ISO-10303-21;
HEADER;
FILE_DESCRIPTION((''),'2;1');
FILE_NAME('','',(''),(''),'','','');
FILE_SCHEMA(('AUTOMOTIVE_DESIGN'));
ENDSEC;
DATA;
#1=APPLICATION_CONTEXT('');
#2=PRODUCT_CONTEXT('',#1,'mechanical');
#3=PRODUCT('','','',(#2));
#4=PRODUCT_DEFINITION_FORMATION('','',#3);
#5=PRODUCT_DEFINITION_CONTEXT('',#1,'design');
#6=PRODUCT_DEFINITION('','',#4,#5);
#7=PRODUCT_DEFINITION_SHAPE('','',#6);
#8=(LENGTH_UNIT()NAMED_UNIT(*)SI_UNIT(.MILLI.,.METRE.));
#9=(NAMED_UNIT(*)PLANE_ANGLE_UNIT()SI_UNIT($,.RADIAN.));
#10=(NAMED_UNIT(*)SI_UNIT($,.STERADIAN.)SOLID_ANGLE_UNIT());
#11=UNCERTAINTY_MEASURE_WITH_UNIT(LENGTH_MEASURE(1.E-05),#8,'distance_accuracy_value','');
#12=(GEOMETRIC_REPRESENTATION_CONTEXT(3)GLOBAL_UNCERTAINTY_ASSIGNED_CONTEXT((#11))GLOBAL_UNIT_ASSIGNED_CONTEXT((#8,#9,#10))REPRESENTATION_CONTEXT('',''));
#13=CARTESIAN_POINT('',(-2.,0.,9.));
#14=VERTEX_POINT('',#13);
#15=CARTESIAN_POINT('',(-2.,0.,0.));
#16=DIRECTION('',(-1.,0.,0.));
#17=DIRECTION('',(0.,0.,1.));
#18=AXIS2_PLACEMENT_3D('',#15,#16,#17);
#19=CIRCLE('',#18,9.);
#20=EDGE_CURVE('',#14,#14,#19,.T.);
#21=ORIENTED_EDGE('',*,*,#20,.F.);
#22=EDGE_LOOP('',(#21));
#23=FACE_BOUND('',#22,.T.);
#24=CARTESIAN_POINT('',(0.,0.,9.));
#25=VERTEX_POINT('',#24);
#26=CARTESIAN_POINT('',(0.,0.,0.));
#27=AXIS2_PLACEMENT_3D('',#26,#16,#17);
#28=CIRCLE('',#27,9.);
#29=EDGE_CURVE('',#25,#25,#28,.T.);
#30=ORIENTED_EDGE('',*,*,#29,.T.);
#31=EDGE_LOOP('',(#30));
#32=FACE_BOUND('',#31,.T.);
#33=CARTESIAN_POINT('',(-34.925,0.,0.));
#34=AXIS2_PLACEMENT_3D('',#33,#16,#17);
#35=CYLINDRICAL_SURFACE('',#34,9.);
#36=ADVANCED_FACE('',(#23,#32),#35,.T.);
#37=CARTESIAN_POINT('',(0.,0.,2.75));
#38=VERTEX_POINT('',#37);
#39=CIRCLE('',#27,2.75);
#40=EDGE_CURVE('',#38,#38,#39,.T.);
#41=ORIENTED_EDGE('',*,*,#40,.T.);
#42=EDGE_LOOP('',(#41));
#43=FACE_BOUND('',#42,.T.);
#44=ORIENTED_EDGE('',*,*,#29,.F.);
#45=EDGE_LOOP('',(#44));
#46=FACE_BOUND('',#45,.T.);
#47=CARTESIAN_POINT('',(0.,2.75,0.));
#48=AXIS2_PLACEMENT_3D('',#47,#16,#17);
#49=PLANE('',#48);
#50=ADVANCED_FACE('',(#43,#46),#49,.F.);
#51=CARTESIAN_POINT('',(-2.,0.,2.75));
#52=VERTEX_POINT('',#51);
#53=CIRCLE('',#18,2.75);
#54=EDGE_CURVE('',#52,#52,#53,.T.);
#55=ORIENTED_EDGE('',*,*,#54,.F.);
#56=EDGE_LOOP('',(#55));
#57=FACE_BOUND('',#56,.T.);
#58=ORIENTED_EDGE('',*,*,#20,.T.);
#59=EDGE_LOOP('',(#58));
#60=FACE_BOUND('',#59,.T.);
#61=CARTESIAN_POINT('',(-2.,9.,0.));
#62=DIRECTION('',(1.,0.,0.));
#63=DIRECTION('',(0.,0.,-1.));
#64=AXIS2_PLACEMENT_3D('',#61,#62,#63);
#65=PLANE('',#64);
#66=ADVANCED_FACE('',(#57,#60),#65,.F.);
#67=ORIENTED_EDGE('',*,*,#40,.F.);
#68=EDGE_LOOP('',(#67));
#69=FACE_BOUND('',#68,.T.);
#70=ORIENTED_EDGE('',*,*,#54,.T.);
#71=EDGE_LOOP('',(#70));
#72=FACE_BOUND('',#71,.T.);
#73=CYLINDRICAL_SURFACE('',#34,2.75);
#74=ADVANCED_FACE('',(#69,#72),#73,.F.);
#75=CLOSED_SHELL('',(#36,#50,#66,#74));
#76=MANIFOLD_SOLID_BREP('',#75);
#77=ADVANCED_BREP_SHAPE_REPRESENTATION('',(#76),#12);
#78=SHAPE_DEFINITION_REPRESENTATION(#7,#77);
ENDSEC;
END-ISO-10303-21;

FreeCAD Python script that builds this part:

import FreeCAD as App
import Part
import Sketcher

V = App.Vector
Q = App.Units.Quantity

doc = App.newDocument("Part")
body = doc.addObject("PartDesign::Body", "Body")

sketch1 = body.newObject("Sketcher::SketchObject", "Sketch")
sketch1.AttachmentSupport = (doc.getObject("XY_Plane"), [""])
sketch1.MapMode = "FlatFace"
sketch1.addGeometry([
    Part.LineSegment(V(-2, 9, 0), V(-2, 2.8, 0)),
    Part.LineSegment(V(-2, 2.8, 0), V(0, 2.8, 0)),
    Part.LineSegment(V(0, 2.8, 0), V(0, 9, 0)),
    Part.LineSegment(V(0, 9, 0), V(-2, 9, 0)),
], False)
sketch1.addConstraint([
    Sketcher.Constraint("Coincident", 0, 2, 1, 1),
    Sketcher.Constraint("Coincident", 1, 2, 2, 1),
    Sketcher.Constraint("Coincident", 2, 2, 3, 1),
    Sketcher.Constraint("Coincident", 3, 2, 0, 1),
    Sketcher.Constraint("Vertical", 0),
    Sketcher.Constraint("Horizontal", 1),
    Sketcher.Constraint("Vertical", 2),
    Sketcher.Constraint("Horizontal", 3),
    Sketcher.Constraint("PointOnObject", 1, 2, -2),
    Sketcher.Constraint("DistanceX", 1, 1, 1, 2, Q("2 mm")),
    Sketcher.Constraint("DistanceY", -1, 1, 2, 2, Q("9 mm")),
    Sketcher.Constraint("DistanceY", 0, 2, 0, 1, Q("6.25 mm")),
])
revolution = body.newObject("PartDesign::Revolution", "Revolution")
revolution.Profile = sketch1
revolution.ReferenceAxis = (sketch1, ["H_Axis"])
revolution.Angle = 360

doc.recompute()
